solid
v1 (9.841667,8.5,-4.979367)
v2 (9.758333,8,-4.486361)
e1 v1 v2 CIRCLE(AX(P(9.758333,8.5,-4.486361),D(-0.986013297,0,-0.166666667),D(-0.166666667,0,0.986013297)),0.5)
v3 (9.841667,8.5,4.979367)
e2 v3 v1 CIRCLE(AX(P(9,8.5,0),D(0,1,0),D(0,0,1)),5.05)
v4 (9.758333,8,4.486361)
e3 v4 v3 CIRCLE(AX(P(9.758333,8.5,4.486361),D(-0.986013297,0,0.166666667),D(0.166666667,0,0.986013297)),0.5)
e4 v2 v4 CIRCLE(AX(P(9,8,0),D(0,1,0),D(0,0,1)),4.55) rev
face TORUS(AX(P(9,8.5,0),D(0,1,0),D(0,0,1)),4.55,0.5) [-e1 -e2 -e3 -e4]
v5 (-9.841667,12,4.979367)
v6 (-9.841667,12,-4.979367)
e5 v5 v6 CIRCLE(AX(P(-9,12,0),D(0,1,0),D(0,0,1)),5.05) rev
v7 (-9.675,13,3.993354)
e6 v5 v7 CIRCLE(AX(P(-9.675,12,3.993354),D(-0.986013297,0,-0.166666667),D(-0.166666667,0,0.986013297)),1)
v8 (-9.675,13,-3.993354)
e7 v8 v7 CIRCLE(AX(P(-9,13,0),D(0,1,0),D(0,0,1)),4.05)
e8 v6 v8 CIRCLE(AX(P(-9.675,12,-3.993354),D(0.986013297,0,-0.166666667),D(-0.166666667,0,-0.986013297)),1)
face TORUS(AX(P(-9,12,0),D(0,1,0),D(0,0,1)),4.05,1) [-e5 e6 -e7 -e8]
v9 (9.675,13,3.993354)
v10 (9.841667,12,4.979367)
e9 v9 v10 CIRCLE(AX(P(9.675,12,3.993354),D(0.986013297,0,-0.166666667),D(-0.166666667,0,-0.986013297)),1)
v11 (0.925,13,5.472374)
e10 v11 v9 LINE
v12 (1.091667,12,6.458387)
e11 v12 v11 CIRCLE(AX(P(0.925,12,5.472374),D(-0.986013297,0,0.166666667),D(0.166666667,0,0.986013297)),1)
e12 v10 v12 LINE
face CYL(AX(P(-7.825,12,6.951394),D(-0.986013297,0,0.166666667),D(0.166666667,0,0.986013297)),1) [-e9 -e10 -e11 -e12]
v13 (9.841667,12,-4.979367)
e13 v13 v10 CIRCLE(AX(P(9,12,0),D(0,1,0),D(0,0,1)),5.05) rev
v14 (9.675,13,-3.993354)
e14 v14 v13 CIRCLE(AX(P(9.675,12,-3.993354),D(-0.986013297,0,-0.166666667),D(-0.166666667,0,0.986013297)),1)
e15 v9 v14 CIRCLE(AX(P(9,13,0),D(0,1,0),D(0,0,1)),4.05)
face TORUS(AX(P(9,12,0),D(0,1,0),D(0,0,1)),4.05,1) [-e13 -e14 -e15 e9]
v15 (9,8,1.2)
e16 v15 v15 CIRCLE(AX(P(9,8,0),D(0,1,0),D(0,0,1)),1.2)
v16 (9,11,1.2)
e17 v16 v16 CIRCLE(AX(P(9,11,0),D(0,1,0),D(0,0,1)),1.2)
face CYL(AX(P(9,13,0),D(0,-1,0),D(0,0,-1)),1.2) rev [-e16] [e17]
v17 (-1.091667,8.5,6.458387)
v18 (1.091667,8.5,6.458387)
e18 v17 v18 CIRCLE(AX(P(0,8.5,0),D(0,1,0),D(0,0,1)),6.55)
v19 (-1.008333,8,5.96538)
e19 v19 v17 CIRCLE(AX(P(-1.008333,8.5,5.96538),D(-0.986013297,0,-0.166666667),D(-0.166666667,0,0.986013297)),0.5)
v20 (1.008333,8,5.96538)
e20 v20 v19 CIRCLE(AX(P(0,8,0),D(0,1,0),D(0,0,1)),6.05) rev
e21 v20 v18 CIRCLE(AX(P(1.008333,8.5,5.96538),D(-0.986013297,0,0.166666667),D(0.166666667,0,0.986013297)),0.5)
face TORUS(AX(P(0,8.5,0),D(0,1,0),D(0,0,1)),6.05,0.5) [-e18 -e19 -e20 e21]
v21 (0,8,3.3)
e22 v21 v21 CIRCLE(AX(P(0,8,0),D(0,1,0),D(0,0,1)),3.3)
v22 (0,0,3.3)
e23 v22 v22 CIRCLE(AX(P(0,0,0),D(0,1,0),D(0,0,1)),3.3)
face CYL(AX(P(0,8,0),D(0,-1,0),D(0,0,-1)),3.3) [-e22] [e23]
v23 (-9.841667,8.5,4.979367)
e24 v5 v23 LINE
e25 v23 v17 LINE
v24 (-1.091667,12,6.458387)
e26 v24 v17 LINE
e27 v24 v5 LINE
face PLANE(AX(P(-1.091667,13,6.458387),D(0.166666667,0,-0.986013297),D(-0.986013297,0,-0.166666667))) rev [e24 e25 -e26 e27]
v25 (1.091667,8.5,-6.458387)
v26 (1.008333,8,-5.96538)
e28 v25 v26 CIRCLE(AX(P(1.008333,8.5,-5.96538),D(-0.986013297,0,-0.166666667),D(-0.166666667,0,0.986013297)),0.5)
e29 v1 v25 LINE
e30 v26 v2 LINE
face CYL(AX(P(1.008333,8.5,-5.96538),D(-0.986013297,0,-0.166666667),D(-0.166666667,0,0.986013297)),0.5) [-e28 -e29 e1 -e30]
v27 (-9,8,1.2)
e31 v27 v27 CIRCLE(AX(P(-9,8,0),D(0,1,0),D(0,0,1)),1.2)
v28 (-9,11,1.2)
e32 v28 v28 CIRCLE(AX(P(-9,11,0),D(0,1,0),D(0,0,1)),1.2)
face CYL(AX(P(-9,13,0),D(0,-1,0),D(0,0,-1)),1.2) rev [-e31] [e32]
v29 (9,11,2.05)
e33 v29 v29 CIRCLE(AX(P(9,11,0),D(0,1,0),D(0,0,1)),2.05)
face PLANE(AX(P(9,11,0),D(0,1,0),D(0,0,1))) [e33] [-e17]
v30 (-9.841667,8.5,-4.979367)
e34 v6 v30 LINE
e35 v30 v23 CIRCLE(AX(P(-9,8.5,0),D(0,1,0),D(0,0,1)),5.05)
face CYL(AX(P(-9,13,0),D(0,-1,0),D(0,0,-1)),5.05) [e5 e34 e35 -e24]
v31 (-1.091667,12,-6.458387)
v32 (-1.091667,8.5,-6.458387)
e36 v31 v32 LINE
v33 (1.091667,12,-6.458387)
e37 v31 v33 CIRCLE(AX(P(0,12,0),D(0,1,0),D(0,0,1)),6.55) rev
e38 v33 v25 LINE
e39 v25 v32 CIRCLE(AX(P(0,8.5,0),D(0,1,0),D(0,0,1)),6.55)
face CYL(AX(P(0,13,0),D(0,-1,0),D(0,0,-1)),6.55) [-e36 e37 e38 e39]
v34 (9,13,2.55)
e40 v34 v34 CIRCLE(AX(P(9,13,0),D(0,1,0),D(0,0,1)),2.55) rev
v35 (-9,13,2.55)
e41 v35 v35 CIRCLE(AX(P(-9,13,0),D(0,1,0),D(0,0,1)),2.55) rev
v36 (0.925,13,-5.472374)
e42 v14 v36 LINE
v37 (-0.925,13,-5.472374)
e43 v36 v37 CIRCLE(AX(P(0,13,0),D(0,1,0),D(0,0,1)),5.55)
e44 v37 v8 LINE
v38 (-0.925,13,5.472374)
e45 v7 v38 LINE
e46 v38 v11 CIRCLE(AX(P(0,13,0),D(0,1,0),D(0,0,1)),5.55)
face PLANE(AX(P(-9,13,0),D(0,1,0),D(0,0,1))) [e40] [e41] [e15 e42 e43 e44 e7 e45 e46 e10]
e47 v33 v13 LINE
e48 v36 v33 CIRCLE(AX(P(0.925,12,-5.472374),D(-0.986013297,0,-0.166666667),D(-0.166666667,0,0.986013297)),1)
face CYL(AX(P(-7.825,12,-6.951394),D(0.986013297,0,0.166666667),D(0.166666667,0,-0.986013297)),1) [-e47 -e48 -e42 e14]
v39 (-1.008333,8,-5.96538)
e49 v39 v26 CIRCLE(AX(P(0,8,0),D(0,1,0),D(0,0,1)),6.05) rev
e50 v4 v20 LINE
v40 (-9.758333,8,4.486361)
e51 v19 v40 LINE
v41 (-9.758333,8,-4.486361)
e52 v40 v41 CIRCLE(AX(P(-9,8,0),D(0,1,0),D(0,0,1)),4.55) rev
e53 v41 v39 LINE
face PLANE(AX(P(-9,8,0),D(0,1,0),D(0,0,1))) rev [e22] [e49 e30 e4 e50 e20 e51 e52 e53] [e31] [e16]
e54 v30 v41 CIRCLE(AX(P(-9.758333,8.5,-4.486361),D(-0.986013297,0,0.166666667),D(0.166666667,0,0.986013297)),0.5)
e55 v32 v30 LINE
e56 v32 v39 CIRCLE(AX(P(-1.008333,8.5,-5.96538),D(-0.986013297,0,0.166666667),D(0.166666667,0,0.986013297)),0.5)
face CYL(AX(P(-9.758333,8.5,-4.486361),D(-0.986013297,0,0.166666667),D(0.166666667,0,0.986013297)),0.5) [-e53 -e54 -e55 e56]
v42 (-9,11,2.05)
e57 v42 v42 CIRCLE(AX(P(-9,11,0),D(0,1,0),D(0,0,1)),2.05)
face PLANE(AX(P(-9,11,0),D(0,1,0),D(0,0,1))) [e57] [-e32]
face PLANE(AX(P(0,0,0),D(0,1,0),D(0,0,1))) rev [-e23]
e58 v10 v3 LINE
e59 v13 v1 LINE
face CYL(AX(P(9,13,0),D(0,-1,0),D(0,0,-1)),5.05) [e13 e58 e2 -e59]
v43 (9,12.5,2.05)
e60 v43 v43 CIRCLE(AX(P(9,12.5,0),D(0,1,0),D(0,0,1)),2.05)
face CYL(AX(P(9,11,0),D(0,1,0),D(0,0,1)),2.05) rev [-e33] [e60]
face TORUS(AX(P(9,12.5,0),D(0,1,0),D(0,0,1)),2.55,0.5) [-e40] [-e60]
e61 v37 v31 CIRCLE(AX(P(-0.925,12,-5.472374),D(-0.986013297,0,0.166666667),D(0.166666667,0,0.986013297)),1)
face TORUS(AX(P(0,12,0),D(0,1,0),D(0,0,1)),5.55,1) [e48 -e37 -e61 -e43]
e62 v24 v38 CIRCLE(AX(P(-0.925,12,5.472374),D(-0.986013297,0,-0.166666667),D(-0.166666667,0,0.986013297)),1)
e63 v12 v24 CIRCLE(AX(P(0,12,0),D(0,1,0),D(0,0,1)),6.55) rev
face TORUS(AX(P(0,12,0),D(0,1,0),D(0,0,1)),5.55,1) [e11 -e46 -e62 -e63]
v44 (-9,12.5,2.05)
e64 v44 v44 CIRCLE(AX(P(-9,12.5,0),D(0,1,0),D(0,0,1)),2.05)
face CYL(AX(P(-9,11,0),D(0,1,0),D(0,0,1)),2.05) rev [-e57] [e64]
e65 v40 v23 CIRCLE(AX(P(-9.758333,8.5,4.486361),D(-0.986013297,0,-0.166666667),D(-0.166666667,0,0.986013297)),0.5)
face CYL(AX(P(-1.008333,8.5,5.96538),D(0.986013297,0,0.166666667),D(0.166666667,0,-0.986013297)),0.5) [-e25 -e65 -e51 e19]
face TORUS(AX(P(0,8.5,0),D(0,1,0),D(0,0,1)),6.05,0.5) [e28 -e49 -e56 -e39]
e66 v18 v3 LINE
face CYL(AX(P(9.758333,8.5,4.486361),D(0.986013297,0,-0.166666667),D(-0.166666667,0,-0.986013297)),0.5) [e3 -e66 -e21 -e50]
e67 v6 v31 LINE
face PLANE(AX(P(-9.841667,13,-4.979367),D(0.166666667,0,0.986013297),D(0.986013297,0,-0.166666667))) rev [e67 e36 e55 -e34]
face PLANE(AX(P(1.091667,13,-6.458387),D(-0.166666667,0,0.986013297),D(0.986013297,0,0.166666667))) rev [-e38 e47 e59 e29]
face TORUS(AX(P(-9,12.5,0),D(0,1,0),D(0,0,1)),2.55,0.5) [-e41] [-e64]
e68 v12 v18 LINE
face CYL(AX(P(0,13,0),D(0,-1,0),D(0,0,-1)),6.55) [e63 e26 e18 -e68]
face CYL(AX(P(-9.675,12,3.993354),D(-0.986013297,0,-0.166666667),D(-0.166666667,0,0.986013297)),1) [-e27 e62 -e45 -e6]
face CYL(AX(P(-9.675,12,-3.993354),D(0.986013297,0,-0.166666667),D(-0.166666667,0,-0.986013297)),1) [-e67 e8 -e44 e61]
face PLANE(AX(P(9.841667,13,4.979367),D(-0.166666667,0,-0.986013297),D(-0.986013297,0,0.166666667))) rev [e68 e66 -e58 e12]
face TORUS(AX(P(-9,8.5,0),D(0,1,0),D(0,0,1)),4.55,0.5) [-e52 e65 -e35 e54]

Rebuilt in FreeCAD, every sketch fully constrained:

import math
import FreeCAD as App
import Part
import Sketcher
from FreeCAD import Vector
Q = App.Units.Quantity


def edges_at(feature, points):
    """Names of the edges that pass closest to the given points."""
    edges = feature.Shape.Edges
    near = lambda p: min(range(len(edges)), key=lambda i: edges[i].distToShape(Part.Vertex(*p))[0])
    return sorted({f"Edge{near(p) + 1}" for p in points})

doc = App.newDocument("Part")
body = doc.addObject("PartDesign::Body", "Body")

sketch1 = body.newObject("Sketcher::SketchObject", "Sketch")
sketch1.AttachmentSupport = (doc.getObject("XZ_Plane"), [""])
sketch1.MapMode = "FlatFace"
sketch1.addGeometry(Part.Circle(Vector(0, 0, 0), Vector(0, 0, 1), 3.3), False)
sketch1.addConstraint([
    Sketcher.Constraint("Coincident", 0, 3, -1, 1),
    Sketcher.Constraint("Diameter", 0, Q("6.6 mm")),
])
pad1 = body.newObject("PartDesign::Pad", "Pad")
pad1.Profile = sketch1
pad1.Length = 8
pad1.Reversed = True

sketch2 = body.newObject("Sketcher::SketchObject", "Sketch001")
sketch2.AttachmentSupport = (doc.getObject("XZ_Plane"), [""])
sketch2.MapMode = "FlatFace"
sketch2.AttachmentOffset = App.Placement(Vector(0, 0, -8), App.Rotation())
sketch2.addGeometry([
    Part.LineSegment(Vector(-1.091667, -6.458387, 0), Vector(-9.841667, -4.979367, 0)),
    Part.ArcOfCircle(Part.Circle(Vector(-9, 0, 0), Vector(0, 0, 1), 5.05), math.radians(99.594068), math.radians(260.405932)),
    Part.LineSegment(Vector(-9.841667, 4.979367, 0), Vector(-1.091667, 6.458387, 0)),
    Part.ArcOfCircle(Part.Circle(Vector(0, 0, 0), Vector(0, 0, 1), 6.55), math.radians(80.405932), math.radians(99.594068)),
    Part.LineSegment(Vector(1.091667, 6.458387, 0), Vector(9.841667, 4.979367, 0)),
    Part.ArcOfCircle(Part.Circle(Vector(9, 0, 0), Vector(0, 0, 1), 5.05), math.radians(-80.405932), math.radians(80.405932)),
    Part.LineSegment(Vector(9.841667, -4.979367, 0), Vector(1.091667, -6.458387, 0)),
    Part.ArcOfCircle(Part.Circle(Vector(0, 0, 0), Vector(0, 0, 1), 6.55), math.radians(-99.594068), math.radians(-80.405932)),
    Part.Circle(Vector(9, 0, 0), Vector(0, 0, 1), 1.2),
    Part.Circle(Vector(-9, 0, 0), Vector(0, 0, 1), 1.2),
], False)
sketch2.addConstraint([
    Sketcher.Constraint("Tangent", 0, 2, 1, 2),
    Sketcher.Constraint("Tangent", 1, 1, 2, 1),
    Sketcher.Constraint("Tangent", 2, 2, 3, 2),
    Sketcher.Constraint("Tangent", 3, 1, 4, 1),
    Sketcher.Constraint("Tangent", 4, 2, 5, 2),
    Sketcher.Constraint("Tangent", 5, 1, 6, 1),
    Sketcher.Constraint("Tangent", 6, 2, 7, 2),
    Sketcher.Constraint("Tangent", 7, 1, 0, 1),
    Sketcher.Constraint("Coincident", 3, 3, -1, 1),
    Sketcher.Constraint("Coincident", 7, 3, -1, 1),
    Sketcher.Constraint("Coincident", 8, 3, 5, 3),
    Sketcher.Constraint("Coincident", 9, 3, 1, 3),
    Sketcher.Constraint("Equal", 1, 5),
    Sketcher.Constraint("Equal", 3, 7),
    Sketcher.Constraint("Equal", 8, 9),
    Sketcher.Constraint("Symmetric", 1, 3, 5, 3, -1, 1),
    Sketcher.Constraint("PointOnObject", 1, 3, -1),
    Sketcher.Constraint("Diameter", 8, Q("2.4 mm")),
    Sketcher.Constraint("Radius", 1, Q("5.05 mm")),
    Sketcher.Constraint("Radius", 3, Q("6.55 mm")),
    Sketcher.Constraint("DistanceX", 1, 3, -1, 1, Q("9 mm")),
])
pad2 = body.newObject("PartDesign::Pad", "Pad001")
pad2.Profile = sketch2
pad2.Length = 5
pad2.Reversed = True

sketch3 = body.newObject("Sketcher::SketchObject", "Sketch002")
sketch3.AttachmentSupport = (doc.getObject("XZ_Plane"), [""])
sketch3.MapMode = "FlatFace"
sketch3.AttachmentOffset = App.Placement(Vector(0, 0, -13), App.Rotation())
sketch3.addGeometry([
    Part.Circle(Vector(-9, 0, 0), Vector(0, 0, 1), 2.05),
    Part.Circle(Vector(9, 0, 0), Vector(0, 0, 1), 2.05),
], False)
sketch3.addConstraint([
    Sketcher.Constraint("Equal", 0, 1),
    Sketcher.Constraint("Symmetric", 0, 3, 1, 3, -1, 1),
    Sketcher.Constraint("PointOnObject", 0, 3, -1),
    Sketcher.Constraint("Diameter", 0, Q("4.1 mm")),
    Sketcher.Constraint("DistanceX", 0, 3, -1, 1, Q("9 mm")),
])
pocket1 = body.newObject("PartDesign::Pocket", "Pocket")
pocket1.Profile = sketch3
pocket1.Length = 2
pocket1.Reversed = True
doc.recompute()

fillet = body.newObject("PartDesign::Fillet", "Fillet")
fillet.Base = (pocket1, edges_at(pocket1, [
    (5.467, 8, 5.719),
    (14.05, 8, 0),
    (5.467, 8, -5.719),
    (0, 8, -6.55),
    (-5.467, 8, -5.719),
    (-9, 13, -2.05),
    (9, 13, -2.05),
    (-14.05, 8, 0),
    (-5.467, 8, 5.719),
    (0, 8, 6.55),
]))
fillet.Radius = 0.5
doc.recompute()

fillet2 = body.newObject("PartDesign::Fillet", "Fillet001")
fillet2.Base = (fillet, edges_at(fillet, [
    (-14.05, 13, 0),
    (-5.467, 13, 5.719),
    (0, 13, 6.55),
    (5.467, 13, 5.719),
    (14.05, 13, 0),
    (5.467, 13, -5.719),
    (0, 13, -6.55),
    (-5.467, 13, -5.719),
]))
fillet2.Radius = 1

doc.recompute()
